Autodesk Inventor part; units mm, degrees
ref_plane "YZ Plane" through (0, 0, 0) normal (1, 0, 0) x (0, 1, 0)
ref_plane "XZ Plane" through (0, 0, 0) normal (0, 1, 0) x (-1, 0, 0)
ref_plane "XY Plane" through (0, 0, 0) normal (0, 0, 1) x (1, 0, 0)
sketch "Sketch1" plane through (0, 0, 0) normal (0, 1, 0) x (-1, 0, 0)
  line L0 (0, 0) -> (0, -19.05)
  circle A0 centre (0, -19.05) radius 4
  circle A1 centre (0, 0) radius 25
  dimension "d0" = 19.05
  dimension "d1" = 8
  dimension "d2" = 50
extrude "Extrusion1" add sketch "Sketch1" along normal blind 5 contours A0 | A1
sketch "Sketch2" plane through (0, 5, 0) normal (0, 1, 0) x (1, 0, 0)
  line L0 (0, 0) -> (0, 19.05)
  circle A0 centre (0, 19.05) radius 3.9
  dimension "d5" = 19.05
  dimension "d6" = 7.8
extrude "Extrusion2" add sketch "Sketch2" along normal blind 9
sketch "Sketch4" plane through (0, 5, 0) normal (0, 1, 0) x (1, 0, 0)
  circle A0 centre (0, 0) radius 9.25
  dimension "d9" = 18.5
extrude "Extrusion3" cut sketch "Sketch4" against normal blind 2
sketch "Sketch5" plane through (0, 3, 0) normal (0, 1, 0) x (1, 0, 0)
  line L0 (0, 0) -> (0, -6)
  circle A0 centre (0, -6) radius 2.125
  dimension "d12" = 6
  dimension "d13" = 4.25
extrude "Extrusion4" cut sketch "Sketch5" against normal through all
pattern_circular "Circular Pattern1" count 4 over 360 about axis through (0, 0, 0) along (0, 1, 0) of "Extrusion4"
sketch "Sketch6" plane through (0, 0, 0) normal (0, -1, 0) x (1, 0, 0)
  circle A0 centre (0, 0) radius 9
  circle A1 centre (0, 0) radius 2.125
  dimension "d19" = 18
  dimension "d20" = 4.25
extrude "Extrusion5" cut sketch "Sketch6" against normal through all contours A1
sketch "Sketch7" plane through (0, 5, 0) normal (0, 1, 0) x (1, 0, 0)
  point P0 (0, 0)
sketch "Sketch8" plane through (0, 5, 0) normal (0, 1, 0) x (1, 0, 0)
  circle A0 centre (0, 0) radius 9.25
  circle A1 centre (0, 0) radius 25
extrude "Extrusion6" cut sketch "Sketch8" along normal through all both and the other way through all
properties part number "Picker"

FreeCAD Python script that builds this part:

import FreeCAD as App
import Part
import Sketcher

V = App.Vector

doc = App.newDocument("Part")
body = doc.addObject("PartDesign::Body", "Body")

# Sketch on XZ plane
sketch1 = body.newObject("Sketcher::SketchObject", "Sketch")
sketch1.AttachmentSupport = (doc.getObject("XZ_Plane"), [""])
sketch1.MapMode = "FlatFace"
sketch1.addGeometry(Part.Circle(V(0, 0, 0), V(0, 0, 1), 25), False)
sketch1.addConstraint([
    Sketcher.Constraint("Coincident", 0, 3, -1, 1),
    Sketcher.Constraint("Diameter", 0, 50.0),
])
pad1 = body.newObject("PartDesign::Pad", "Pad")
pad1.Profile = sketch1
pad1.Length = 5
pad1.Reversed = True

# Sketch on XZ plane
sketch2 = body.newObject("Sketcher::SketchObject", "Sketch001")
sketch2.AttachmentSupport = (doc.getObject("XZ_Plane"), [""])
sketch2.MapMode = "FlatFace"
sketch2.AttachmentOffset = App.Placement(V(0, 0, -5), App.Rotation())
sketch2.addGeometry(Part.Circle(V(0, -19.05, 0), V(0, 0, 1), 3.9), False)
sketch2.addConstraint([
    Sketcher.Constraint("PointOnObject", 0, 3, -2),
    Sketcher.Constraint("Diameter", 0, 7.8),
    Sketcher.Constraint("DistanceY", 0, 3, -1, 1, 19.05),
])
pad2 = body.newObject("PartDesign::Pad", "Pad001")
pad2.Profile = sketch2
pad2.Length = 9
pad2.Reversed = True

# Sketch on XZ plane
sketch3 = body.newObject("Sketcher::SketchObject", "Sketch002")
sketch3.AttachmentSupport = (doc.getObject("XZ_Plane"), [""])
sketch3.MapMode = "FlatFace"
sketch3.AttachmentOffset = App.Placement(V(0, 0, -5), App.Rotation())
sketch3.addGeometry(Part.Circle(V(0, 0, 0), V(0, 0, 1), 9.25), False)
sketch3.addConstraint([
    Sketcher.Constraint("Coincident", 0, 3, -1, 1),
    Sketcher.Constraint("Diameter", 0, 18.5),
])
pocket1 = body.newObject("PartDesign::Pocket", "Pocket")
pocket1.Profile = sketch3
pocket1.Length = 2
pocket1.Reversed = True

# Sketch on XZ plane
sketch4 = body.newObject("Sketcher::SketchObject", "Sketch003")
sketch4.AttachmentSupport = (doc.getObject("XZ_Plane"), [""])
sketch4.MapMode = "FlatFace"
sketch4.AttachmentOffset = App.Placement(V(0, 0, -3), App.Rotation())
sketch4.addGeometry(Part.Circle(V(0, 6, 0), V(0, 0, 1), 2.125), False)
sketch4.addConstraint([
    Sketcher.Constraint("PointOnObject", 0, 3, -2),
    Sketcher.Constraint("Diameter", 0, 4.25),
    Sketcher.Constraint("DistanceY", -1, 1, 0, 3, 6.0),
])
pocket2 = body.newObject("PartDesign::Pocket", "Pocket001")
pocket2.Profile = sketch4
pocket2.Type = "ThroughAll"
pocket2.Reversed = True
doc.recompute()

polarpattern = body.newObject("PartDesign::PolarPattern", "PolarPattern")
polarpattern.Originals = [pocket2]
polarpattern.Axis = (doc.getObject("Y_Axis"), [""])
polarpattern.Angle = 360
polarpattern.Occurrences = 4
body.Tip = polarpattern

# Sketch on XZ plane
sketch5 = body.newObject("Sketcher::SketchObject", "Sketch004")
sketch5.AttachmentSupport = (doc.getObject("XZ_Plane"), [""])
sketch5.MapMode = "FlatFace"
sketch5.addGeometry(Part.Circle(V(0, 0, 0), V(0, 0, 1), 2.125), False)
sketch5.addConstraint([
    Sketcher.Constraint("Coincident", 0, 3, -1, 1),
    Sketcher.Constraint("Diameter", 0, 4.25),
])
pocket3 = body.newObject("PartDesign::Pocket", "Pocket002")
pocket3.Profile = sketch5
pocket3.Type = "ThroughAll"

# Sketch on XZ plane
sketch6 = body.newObject("Sketcher::SketchObject", "Sketch005")
sketch6.AttachmentSupport = (doc.getObject("XZ_Plane"), [""])
sketch6.MapMode = "FlatFace"
sketch6.AttachmentOffset = App.Placement(V(0, 0, -5), App.Rotation())
sketch6.addGeometry([
    Part.Circle(V(0, 0, 0), V(0, 0, 1), 25),
    Part.Circle(V(0, 0, 0), V(0, 0, 1), 9.25),
], False)
sketch6.addConstraint([
    Sketcher.Constraint("Coincident", 0, 3, -1, 1),
    Sketcher.Constraint("Coincident", 1, 3, -1, 1),
    Sketcher.Constraint("Diameter", 0, 50.0),
    Sketcher.Constraint("Diameter", 1, 18.5),
])
pocket4 = body.newObject("PartDesign::Pocket", "Pocket003")
pocket4.Profile = sketch6
pocket4.Type = "ThroughAll"
pocket4.Midplane = True

doc.recompute()
